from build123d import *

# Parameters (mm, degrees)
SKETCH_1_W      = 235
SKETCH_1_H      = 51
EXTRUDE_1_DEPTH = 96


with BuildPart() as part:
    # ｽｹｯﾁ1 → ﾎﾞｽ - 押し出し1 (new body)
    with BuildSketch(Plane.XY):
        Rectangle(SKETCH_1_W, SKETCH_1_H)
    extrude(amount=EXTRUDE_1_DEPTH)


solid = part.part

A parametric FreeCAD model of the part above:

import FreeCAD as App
import Part
import Sketcher
from FreeCAD import Vector
Q = App.Units.Quantity


def add_polygon(sketch, points):
    """Adds a closed chain of lines whose ends are joined by coincident constraints."""
    first, n = sketch.GeometryCount, len(points)
    for a, b in zip(points, points[1:] + points[:1]):
        sketch.addGeometry(Part.LineSegment(App.Vector(*a, 0), App.Vector(*b, 0)), False)
    for i in range(n):
        sketch.addConstraint(Sketcher.Constraint("Coincident", first + i, 2, first + (i + 1) % n, 1))

doc = App.newDocument("Part")
params = doc.addObject("Spreadsheet::Sheet", "Params")
for row, (alias, value) in enumerate([
    ("sketch1_width", "235 mm"),
    ("sketch1_height", "51 mm"),
    ("pad1_length", "96 mm"),
], start=1):
    params.set(f"A{row}", alias)
    params.set(f"B{row}", "=" + value)
    params.setAlias(f"B{row}", alias)

body = doc.addObject("PartDesign::Body", "Body")

sketch1 = body.newObject("Sketcher::SketchObject", "Sketch")
sketch1.AttachmentSupport = (doc.getObject("XY_Plane"), [""])
sketch1.MapMode = "FlatFace"
add_polygon(sketch1, [(-118, 26), (-118, -26), (118, -26), (118, 26)])
sketch1.addConstraint([
    Sketcher.Constraint("Vertical", 0),
    Sketcher.Constraint("Horizontal", 1),
    Sketcher.Constraint("Vertical", 2),
    Sketcher.Constraint("Horizontal", 3),
    Sketcher.Constraint("Symmetric", 0, 2, 2, 2, -1, 1),
    Sketcher.Constraint("DistanceX", 1, 1, 1, 2, Q("235 mm")),
    Sketcher.Constraint("DistanceY", 0, 2, 0, 1, Q("51 mm")),
])
sketch1.setExpression("Constraints[9]", "Params.sketch1_width")
sketch1.setExpression("Constraints[10]", "Params.sketch1_height")
pad1 = body.newObject("PartDesign::Pad", "Pad")
pad1.Profile = sketch1
pad1.setExpression("Length", "Params.pad1_length")

doc.recompute()
